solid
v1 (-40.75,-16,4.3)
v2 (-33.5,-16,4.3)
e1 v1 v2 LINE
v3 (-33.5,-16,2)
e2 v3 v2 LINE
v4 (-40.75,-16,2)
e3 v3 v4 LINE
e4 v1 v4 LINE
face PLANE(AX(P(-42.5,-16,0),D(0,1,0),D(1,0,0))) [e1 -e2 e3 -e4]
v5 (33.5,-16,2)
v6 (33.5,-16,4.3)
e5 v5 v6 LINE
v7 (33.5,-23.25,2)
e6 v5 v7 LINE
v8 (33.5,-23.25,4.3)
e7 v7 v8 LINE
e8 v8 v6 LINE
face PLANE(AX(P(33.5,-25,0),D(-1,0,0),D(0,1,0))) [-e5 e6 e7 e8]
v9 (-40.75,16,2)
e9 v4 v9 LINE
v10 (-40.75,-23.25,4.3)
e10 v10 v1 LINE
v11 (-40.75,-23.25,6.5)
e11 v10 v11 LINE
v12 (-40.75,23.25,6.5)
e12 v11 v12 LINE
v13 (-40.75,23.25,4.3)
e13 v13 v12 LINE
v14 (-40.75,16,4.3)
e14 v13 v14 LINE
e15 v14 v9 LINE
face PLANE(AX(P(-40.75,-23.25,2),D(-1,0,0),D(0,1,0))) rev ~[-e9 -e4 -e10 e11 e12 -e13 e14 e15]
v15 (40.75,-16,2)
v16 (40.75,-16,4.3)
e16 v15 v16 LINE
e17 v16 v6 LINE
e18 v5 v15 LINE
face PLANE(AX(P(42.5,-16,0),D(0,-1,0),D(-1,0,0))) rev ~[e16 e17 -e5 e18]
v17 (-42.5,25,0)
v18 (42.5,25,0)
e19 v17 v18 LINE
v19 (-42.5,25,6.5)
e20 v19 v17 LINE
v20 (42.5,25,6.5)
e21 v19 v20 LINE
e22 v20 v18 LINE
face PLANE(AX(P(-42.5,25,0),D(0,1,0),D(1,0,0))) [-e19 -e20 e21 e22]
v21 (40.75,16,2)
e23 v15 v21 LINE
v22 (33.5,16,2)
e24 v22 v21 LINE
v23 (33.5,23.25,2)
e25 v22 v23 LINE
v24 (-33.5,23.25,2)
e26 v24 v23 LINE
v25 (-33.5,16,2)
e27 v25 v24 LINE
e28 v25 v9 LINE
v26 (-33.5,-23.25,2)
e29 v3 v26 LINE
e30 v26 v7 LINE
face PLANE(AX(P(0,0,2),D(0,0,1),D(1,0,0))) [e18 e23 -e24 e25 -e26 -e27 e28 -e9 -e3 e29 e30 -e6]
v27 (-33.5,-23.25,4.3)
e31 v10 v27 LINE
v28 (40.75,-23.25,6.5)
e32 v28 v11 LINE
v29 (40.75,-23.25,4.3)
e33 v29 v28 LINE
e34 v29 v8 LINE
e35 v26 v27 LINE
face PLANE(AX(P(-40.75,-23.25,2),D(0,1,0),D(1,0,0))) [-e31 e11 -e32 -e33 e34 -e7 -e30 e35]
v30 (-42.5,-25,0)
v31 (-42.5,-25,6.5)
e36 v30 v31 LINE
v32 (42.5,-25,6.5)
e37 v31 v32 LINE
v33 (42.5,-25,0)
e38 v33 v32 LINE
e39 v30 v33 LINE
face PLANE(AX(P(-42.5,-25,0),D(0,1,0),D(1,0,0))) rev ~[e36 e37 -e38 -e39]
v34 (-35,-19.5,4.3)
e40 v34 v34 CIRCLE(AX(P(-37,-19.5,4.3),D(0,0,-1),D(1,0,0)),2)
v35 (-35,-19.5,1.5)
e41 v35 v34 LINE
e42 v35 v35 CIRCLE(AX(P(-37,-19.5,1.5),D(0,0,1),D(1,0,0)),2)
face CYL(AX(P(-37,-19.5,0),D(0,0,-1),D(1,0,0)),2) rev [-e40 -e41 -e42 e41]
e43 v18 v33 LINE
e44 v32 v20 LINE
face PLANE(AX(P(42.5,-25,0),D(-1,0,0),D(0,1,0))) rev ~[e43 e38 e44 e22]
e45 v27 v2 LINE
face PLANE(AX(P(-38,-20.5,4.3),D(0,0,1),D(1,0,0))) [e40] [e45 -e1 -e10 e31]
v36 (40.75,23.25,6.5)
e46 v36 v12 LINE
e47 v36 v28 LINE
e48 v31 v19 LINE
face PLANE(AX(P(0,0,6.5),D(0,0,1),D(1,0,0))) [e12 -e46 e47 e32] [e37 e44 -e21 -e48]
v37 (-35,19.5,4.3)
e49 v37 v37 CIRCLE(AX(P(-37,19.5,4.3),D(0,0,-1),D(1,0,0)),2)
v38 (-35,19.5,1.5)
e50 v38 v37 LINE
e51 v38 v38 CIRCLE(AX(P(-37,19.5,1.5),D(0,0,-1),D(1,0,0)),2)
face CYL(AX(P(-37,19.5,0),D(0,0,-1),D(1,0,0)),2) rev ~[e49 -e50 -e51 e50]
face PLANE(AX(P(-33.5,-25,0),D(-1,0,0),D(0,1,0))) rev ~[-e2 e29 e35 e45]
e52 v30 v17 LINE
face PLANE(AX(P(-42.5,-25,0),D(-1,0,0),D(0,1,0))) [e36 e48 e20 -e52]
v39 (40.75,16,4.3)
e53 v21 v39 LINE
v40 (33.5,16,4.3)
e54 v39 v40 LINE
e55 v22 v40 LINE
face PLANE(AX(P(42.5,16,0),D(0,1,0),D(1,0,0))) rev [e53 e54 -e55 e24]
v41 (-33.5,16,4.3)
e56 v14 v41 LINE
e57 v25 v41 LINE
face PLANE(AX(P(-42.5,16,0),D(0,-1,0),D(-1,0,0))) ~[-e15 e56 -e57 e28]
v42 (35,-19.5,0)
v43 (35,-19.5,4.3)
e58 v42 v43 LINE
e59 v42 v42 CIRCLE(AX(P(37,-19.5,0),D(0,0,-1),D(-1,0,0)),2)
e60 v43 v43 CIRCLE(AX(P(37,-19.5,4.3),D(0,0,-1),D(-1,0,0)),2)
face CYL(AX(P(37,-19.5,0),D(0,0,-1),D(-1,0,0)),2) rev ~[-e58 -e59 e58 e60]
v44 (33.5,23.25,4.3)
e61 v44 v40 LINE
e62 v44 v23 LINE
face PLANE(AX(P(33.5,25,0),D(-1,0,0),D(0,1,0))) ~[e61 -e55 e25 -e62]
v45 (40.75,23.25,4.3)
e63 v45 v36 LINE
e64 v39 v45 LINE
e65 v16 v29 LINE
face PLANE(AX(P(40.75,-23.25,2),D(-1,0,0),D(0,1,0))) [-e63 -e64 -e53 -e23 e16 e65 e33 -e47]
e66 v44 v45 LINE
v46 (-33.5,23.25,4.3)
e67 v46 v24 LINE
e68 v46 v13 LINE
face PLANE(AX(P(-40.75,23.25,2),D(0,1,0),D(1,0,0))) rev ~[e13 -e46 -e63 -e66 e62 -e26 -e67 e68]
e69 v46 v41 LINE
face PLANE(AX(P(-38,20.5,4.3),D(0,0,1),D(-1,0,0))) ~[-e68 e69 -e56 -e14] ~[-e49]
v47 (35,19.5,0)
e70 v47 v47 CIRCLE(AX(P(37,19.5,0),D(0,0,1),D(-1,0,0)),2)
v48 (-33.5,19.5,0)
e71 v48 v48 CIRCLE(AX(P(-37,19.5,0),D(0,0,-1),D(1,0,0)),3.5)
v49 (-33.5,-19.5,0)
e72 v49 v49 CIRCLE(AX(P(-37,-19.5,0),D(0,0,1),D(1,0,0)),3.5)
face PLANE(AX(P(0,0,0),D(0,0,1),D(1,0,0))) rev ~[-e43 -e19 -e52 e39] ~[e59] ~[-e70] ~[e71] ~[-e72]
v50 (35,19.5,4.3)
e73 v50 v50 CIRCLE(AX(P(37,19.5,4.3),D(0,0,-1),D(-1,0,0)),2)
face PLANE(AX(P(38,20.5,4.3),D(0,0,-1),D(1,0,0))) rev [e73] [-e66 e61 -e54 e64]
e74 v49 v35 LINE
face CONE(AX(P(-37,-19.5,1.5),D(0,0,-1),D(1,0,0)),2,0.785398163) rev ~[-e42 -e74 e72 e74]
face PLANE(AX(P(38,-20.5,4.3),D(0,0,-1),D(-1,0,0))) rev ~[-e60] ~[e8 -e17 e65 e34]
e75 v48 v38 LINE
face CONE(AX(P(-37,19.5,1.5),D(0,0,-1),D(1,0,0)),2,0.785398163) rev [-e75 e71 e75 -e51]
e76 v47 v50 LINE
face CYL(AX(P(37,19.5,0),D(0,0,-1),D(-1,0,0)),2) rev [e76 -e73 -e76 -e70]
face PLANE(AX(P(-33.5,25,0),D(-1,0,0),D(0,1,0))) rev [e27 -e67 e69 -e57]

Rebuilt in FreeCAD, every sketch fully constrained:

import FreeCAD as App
import Part
import Sketcher

V = App.Vector


def edges_at(feature, points):
    """Names of the edges that pass closest to the given points."""
    edges = feature.Shape.Edges
    near = lambda p: min(range(len(edges)), key=lambda i: edges[i].distToShape(Part.Vertex(*p))[0])
    return sorted({f"Edge{near(p) + 1}" for p in points})


def add_polygon(sketch, points):
    """Adds a closed chain of lines whose ends are joined by coincident constraints."""
    first, n = sketch.GeometryCount, len(points)
    for a, b in zip(points, points[1:] + points[:1]):
        sketch.addGeometry(Part.LineSegment(App.Vector(*a, 0), App.Vector(*b, 0)), False)
    for i in range(n):
        sketch.addConstraint(Sketcher.Constraint("Coincident", first + i, 2, first + (i + 1) % n, 1))

doc = App.newDocument("Part")
body = doc.addObject("PartDesign::Body", "Body")

# Sketch on XY plane
sketch1 = doc.addObject("Sketcher::SketchObject", "Sketch")
body.addObject(sketch1)
sketch1.AttachmentSupport = (doc.XY_Plane, [""])
sketch1.MapMode = "FlatFace"
add_polygon(sketch1, [(-42, 25), (-42, -25), (42, -25), (42, 25)])  # lines 0-3
sketch1.addConstraint([
    Sketcher.Constraint("Vertical", 0),
    Sketcher.Constraint("Horizontal", 1),
    Sketcher.Constraint("Vertical", 2),
    Sketcher.Constraint("Horizontal", 3),
    Sketcher.Constraint("Symmetric", 0, 2, 2, 2, -1, 1),
    Sketcher.Constraint("DistanceX", 1, 1, 1, 2, 85.0),
    Sketcher.Constraint("DistanceY", 0, 2, 0, 1, 50.0),
])
pad1 = doc.addObject("PartDesign::Pad", "Pad")
body.addObject(pad1)
pad1.Profile = sketch1
pad1.Length = 6.5

# Sketch on XY plane
sketch2 = doc.addObject("Sketcher::SketchObject", "Sketch001")
body.addObject(sketch2)
sketch2.AttachmentSupport = (doc.XY_Plane, [""])
sketch2.MapMode = "FlatFace"
sketch2.AttachmentOffset = App.Placement(V(0, 0, 2), App.Rotation())
add_polygon(sketch2, [(-41, 23), (-41, -23), (41, -23), (41, 23)])  # lines 0-3
sketch2.addConstraint([
    Sketcher.Constraint("Vertical", 0),
    Sketcher.Constraint("Horizontal", 1),
    Sketcher.Constraint("Vertical", 2),
    Sketcher.Constraint("Horizontal", 3),
    Sketcher.Constraint("Symmetric", 0, 2, 2, 2, -1, 1),
    Sketcher.Constraint("DistanceX", 1, 1, 1, 2, 81.5),
    Sketcher.Constraint("DistanceY", 0, 2, 0, 1, 46.5),
])
pocket1 = doc.addObject("PartDesign::Pocket", "Pocket")
body.addObject(pocket1)
pocket1.Profile = sketch2
pocket1.Type = "ThroughAll"
pocket1.Reversed = True

# Sketch on XY plane
sketch3 = doc.addObject("Sketcher::SketchObject", "Sketch002")
body.addObject(sketch3)
sketch3.AttachmentSupport = (doc.XY_Plane, [""])
sketch3.MapMode = "FlatFace"
add_polygon(sketch3, [(-42, -16), (-42, -25), (-34, -25), (-34, -16)])  # lines 0-3
sketch3.addConstraint([
    Sketcher.Constraint("Vertical", 0),
    Sketcher.Constraint("Horizontal", 1),
    Sketcher.Constraint("Vertical", 2),
    Sketcher.Constraint("Horizontal", 3),
    Sketcher.Constraint("Equal", 3, 0),
    Sketcher.Constraint("DistanceX", 1, 1, 1, 2, 9.0),
    Sketcher.Constraint("DistanceY", 0, 2, -1, 1, 25.0),
    Sketcher.Constraint("DistanceX", 0, 2, -1, 1, 42.5),
])
pad2 = doc.addObject("PartDesign::Pad", "Pad001")
body.addObject(pad2)
pad2.Profile = sketch3
pad2.Length = 4.3

# Sketch on XY plane
sketch4 = doc.addObject("Sketcher::SketchObject", "Sketch003")
body.addObject(sketch4)
sketch4.AttachmentSupport = (doc.XY_Plane, [""])
sketch4.MapMode = "FlatFace"
add_polygon(sketch4, [(42, -16), (42, -25), (34, -25), (34, -16)])  # lines 0-3
sketch4.addConstraint([
    Sketcher.Constraint("Vertical", 0),
    Sketcher.Constraint("Horizontal", 1),
    Sketcher.Constraint("Vertical", 2),
    Sketcher.Constraint("Horizontal", 3),
    Sketcher.Constraint("Equal", 3, 0),
    Sketcher.Constraint("DistanceX", 1, 2, 1, 1, 9.0),
    Sketcher.Constraint("DistanceY", 0, 2, -1, 1, 25.0),
    Sketcher.Constraint("DistanceX", -1, 1, 0, 2, 42.5),
])
pad3 = doc.addObject("PartDesign::Pad", "Pad002")
body.addObject(pad3)
pad3.Profile = sketch4
pad3.Length = 4.3
doc.recompute()

mirrored = doc.addObject("PartDesign::Mirrored", "Mirrored")
body.addObject(mirrored)
mirrored.Originals = [pad2, pad3]
mirrored.MirrorPlane = (doc.XZ_Plane, [""])
body.Tip = mirrored

# Sketch on XY plane
sketch5 = doc.addObject("Sketcher::SketchObject", "Sketch004")
body.addObject(sketch5)
sketch5.AttachmentSupport = (doc.XY_Plane, [""])
sketch5.MapMode = "FlatFace"
sketch5.addGeometry(Part.Circle(V(-37, -19.5, 0), V(0, 0, 1), 2), False)
sketch5.addConstraint([
    Sketcher.Constraint("Diameter", 0, 4.0),
    Sketcher.Constraint("DistanceX", 0, 3, -1, 1, 37.0),
    Sketcher.Constraint("DistanceY", 0, 3, -1, 1, 19.5),
])
pocket2 = doc.addObject("PartDesign::Pocket", "Pocket001")
body.addObject(pocket2)
pocket2.Profile = sketch5
pocket2.Length = 10
pocket2.Reversed = True

# Sketch on XY plane
sketch6 = doc.addObject("Sketcher::SketchObject", "Sketch005")
body.addObject(sketch6)
sketch6.AttachmentSupport = (doc.XY_Plane, [""])
sketch6.MapMode = "FlatFace"
sketch6.addGeometry(Part.Circle(V(37, -19.5, 0), V(0, 0, 1), 2), False)
sketch6.addConstraint([
    Sketcher.Constraint("Diameter", 0, 4.0),
    Sketcher.Constraint("DistanceX", -1, 1, 0, 3, 37.0),
    Sketcher.Constraint("DistanceY", 0, 3, -1, 1, 19.5),
])
pocket3 = doc.addObject("PartDesign::Pocket", "Pocket002")
body.addObject(pocket3)
pocket3.Profile = sketch6
pocket3.Length = 10
pocket3.Reversed = True
doc.recompute()

mirrored2 = doc.addObject("PartDesign::Mirrored", "Mirrored001")
body.addObject(mirrored2)
mirrored2.Originals = [pocket2, pocket3]
mirrored2.MirrorPlane = (doc.XZ_Plane, [""])
body.Tip = mirrored2

# Sketch on XY plane
sketch7 = doc.addObject("Sketcher::SketchObject", "Sketch006")
body.addObject(sketch7)
sketch7.AttachmentSupport = (doc.XY_Plane, [""])
sketch7.MapMode = "FlatFace"
sketch7.AttachmentOffset = App.Placement(V(0, 0, 6.5), App.Rotation())
add_polygon(sketch7, [(-43.7, 16), (-43.7, -16), (-39.4, -16), (-39.4, 16)])  # lines 0-3
sketch7.addConstraint([
    Sketcher.Constraint("Vertical", 0),
    Sketcher.Constraint("Horizontal", 1),
    Sketcher.Constraint("Vertical", 2),
    Sketcher.Constraint("Horizontal", 3),
    Sketcher.Constraint("DistanceY", 0, 2, 0, 1, 32.0),
    Sketcher.Constraint("DistanceY", 0, 2, -1, 1, 16.0),
    Sketcher.Constraint("DistanceX", 1, 1, 1, 2, 4.302639),
    Sketcher.Constraint("DistanceX", 0, 2, -1, 1, 43.71069),
])
pocket4 = doc.addObject("PartDesign::Pocket", "Pocket003")
body.addObject(pocket4)
pocket4.Profile = sketch7
pocket4.Length = 5
pocket4.Reversed = True
doc.recompute()

chamfer = doc.addObject("PartDesign::Chamfer", "Chamfer")
body.addObject(chamfer)
chamfer.Base = (pocket4, edges_at(pocket4, [(-39, -19.5, 0), (-39, 19.5, 0)]))
chamfer.Size = 1.5

doc.recompute()
